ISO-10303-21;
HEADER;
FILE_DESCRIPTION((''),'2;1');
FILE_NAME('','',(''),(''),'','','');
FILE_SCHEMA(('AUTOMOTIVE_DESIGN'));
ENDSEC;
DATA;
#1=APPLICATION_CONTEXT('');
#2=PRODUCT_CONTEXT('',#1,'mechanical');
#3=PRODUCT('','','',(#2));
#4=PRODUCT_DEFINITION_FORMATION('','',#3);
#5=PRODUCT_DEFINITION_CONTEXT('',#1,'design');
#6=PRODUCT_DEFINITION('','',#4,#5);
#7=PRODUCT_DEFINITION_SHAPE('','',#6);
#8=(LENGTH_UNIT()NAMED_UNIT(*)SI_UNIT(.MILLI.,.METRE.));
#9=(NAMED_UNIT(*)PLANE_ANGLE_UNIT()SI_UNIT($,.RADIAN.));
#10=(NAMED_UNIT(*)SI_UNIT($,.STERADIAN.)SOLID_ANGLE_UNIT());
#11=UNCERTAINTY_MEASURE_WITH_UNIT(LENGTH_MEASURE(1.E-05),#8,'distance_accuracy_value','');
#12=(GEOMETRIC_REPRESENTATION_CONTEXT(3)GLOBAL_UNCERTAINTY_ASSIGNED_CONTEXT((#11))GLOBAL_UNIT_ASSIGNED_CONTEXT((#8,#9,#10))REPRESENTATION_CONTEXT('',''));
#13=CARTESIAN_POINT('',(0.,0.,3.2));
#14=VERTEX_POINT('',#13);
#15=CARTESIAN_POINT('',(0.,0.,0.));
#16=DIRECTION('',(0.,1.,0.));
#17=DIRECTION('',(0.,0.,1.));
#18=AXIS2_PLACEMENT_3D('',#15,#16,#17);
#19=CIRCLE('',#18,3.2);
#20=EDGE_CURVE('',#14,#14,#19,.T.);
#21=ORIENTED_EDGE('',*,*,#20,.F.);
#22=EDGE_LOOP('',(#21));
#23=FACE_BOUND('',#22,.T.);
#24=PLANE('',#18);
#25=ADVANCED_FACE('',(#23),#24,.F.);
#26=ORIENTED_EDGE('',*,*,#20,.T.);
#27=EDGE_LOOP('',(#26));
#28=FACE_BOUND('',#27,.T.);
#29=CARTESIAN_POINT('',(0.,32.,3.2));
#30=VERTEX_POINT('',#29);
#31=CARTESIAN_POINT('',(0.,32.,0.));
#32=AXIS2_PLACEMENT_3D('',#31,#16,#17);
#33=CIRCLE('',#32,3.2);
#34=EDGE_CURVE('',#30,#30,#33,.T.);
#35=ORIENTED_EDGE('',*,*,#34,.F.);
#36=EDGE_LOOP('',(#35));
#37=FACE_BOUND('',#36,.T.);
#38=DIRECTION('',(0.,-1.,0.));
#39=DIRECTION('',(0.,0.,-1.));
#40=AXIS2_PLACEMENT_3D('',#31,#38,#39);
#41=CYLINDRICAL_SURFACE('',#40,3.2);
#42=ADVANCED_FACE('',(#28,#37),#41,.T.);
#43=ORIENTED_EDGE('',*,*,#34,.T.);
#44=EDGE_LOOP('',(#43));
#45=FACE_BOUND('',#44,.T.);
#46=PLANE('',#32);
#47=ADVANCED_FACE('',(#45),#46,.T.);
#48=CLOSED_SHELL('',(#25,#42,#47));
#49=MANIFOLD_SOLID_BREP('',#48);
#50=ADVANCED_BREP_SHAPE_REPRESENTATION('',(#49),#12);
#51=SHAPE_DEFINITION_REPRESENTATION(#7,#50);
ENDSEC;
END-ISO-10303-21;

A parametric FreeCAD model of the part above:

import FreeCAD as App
import Part
import Sketcher

doc = App.newDocument("Part")
params = doc.addObject("Spreadsheet::Sheet", "Params")
for row, (alias, value) in enumerate([
    ("sketch1_diameter", "6.4 mm"),
    ("pad1_length", "32 mm"),
], start=1):
    params.set(f"A{row}", alias)
    params.set(f"B{row}", "=" + value)
    params.setAlias(f"B{row}", alias)

body = doc.addObject("PartDesign::Body", "Body")

# Sketch on XZ plane
sketch1 = body.newObject("Sketcher::SketchObject", "Sketch")
sketch1.AttachmentSupport = (doc.getObject("XZ_Plane"), [""])
sketch1.MapMode = "FlatFace"
sketch1.addGeometry(Part.Circle(App.Vector(0, 0, 0), App.Vector(0, 0, 1), 3.2), False)
sketch1.addConstraint([
    Sketcher.Constraint("Coincident", 0, 3, -1, 1),
    Sketcher.Constraint("Diameter", 0, 6.4),
])
sketch1.setExpression("Constraints[1]", "Params.sketch1_diameter")
pad1 = body.newObject("PartDesign::Pad", "Pad")
pad1.Profile = sketch1
pad1.setExpression("Length", "Params.pad1_length")
pad1.Reversed = True

doc.recompute()
